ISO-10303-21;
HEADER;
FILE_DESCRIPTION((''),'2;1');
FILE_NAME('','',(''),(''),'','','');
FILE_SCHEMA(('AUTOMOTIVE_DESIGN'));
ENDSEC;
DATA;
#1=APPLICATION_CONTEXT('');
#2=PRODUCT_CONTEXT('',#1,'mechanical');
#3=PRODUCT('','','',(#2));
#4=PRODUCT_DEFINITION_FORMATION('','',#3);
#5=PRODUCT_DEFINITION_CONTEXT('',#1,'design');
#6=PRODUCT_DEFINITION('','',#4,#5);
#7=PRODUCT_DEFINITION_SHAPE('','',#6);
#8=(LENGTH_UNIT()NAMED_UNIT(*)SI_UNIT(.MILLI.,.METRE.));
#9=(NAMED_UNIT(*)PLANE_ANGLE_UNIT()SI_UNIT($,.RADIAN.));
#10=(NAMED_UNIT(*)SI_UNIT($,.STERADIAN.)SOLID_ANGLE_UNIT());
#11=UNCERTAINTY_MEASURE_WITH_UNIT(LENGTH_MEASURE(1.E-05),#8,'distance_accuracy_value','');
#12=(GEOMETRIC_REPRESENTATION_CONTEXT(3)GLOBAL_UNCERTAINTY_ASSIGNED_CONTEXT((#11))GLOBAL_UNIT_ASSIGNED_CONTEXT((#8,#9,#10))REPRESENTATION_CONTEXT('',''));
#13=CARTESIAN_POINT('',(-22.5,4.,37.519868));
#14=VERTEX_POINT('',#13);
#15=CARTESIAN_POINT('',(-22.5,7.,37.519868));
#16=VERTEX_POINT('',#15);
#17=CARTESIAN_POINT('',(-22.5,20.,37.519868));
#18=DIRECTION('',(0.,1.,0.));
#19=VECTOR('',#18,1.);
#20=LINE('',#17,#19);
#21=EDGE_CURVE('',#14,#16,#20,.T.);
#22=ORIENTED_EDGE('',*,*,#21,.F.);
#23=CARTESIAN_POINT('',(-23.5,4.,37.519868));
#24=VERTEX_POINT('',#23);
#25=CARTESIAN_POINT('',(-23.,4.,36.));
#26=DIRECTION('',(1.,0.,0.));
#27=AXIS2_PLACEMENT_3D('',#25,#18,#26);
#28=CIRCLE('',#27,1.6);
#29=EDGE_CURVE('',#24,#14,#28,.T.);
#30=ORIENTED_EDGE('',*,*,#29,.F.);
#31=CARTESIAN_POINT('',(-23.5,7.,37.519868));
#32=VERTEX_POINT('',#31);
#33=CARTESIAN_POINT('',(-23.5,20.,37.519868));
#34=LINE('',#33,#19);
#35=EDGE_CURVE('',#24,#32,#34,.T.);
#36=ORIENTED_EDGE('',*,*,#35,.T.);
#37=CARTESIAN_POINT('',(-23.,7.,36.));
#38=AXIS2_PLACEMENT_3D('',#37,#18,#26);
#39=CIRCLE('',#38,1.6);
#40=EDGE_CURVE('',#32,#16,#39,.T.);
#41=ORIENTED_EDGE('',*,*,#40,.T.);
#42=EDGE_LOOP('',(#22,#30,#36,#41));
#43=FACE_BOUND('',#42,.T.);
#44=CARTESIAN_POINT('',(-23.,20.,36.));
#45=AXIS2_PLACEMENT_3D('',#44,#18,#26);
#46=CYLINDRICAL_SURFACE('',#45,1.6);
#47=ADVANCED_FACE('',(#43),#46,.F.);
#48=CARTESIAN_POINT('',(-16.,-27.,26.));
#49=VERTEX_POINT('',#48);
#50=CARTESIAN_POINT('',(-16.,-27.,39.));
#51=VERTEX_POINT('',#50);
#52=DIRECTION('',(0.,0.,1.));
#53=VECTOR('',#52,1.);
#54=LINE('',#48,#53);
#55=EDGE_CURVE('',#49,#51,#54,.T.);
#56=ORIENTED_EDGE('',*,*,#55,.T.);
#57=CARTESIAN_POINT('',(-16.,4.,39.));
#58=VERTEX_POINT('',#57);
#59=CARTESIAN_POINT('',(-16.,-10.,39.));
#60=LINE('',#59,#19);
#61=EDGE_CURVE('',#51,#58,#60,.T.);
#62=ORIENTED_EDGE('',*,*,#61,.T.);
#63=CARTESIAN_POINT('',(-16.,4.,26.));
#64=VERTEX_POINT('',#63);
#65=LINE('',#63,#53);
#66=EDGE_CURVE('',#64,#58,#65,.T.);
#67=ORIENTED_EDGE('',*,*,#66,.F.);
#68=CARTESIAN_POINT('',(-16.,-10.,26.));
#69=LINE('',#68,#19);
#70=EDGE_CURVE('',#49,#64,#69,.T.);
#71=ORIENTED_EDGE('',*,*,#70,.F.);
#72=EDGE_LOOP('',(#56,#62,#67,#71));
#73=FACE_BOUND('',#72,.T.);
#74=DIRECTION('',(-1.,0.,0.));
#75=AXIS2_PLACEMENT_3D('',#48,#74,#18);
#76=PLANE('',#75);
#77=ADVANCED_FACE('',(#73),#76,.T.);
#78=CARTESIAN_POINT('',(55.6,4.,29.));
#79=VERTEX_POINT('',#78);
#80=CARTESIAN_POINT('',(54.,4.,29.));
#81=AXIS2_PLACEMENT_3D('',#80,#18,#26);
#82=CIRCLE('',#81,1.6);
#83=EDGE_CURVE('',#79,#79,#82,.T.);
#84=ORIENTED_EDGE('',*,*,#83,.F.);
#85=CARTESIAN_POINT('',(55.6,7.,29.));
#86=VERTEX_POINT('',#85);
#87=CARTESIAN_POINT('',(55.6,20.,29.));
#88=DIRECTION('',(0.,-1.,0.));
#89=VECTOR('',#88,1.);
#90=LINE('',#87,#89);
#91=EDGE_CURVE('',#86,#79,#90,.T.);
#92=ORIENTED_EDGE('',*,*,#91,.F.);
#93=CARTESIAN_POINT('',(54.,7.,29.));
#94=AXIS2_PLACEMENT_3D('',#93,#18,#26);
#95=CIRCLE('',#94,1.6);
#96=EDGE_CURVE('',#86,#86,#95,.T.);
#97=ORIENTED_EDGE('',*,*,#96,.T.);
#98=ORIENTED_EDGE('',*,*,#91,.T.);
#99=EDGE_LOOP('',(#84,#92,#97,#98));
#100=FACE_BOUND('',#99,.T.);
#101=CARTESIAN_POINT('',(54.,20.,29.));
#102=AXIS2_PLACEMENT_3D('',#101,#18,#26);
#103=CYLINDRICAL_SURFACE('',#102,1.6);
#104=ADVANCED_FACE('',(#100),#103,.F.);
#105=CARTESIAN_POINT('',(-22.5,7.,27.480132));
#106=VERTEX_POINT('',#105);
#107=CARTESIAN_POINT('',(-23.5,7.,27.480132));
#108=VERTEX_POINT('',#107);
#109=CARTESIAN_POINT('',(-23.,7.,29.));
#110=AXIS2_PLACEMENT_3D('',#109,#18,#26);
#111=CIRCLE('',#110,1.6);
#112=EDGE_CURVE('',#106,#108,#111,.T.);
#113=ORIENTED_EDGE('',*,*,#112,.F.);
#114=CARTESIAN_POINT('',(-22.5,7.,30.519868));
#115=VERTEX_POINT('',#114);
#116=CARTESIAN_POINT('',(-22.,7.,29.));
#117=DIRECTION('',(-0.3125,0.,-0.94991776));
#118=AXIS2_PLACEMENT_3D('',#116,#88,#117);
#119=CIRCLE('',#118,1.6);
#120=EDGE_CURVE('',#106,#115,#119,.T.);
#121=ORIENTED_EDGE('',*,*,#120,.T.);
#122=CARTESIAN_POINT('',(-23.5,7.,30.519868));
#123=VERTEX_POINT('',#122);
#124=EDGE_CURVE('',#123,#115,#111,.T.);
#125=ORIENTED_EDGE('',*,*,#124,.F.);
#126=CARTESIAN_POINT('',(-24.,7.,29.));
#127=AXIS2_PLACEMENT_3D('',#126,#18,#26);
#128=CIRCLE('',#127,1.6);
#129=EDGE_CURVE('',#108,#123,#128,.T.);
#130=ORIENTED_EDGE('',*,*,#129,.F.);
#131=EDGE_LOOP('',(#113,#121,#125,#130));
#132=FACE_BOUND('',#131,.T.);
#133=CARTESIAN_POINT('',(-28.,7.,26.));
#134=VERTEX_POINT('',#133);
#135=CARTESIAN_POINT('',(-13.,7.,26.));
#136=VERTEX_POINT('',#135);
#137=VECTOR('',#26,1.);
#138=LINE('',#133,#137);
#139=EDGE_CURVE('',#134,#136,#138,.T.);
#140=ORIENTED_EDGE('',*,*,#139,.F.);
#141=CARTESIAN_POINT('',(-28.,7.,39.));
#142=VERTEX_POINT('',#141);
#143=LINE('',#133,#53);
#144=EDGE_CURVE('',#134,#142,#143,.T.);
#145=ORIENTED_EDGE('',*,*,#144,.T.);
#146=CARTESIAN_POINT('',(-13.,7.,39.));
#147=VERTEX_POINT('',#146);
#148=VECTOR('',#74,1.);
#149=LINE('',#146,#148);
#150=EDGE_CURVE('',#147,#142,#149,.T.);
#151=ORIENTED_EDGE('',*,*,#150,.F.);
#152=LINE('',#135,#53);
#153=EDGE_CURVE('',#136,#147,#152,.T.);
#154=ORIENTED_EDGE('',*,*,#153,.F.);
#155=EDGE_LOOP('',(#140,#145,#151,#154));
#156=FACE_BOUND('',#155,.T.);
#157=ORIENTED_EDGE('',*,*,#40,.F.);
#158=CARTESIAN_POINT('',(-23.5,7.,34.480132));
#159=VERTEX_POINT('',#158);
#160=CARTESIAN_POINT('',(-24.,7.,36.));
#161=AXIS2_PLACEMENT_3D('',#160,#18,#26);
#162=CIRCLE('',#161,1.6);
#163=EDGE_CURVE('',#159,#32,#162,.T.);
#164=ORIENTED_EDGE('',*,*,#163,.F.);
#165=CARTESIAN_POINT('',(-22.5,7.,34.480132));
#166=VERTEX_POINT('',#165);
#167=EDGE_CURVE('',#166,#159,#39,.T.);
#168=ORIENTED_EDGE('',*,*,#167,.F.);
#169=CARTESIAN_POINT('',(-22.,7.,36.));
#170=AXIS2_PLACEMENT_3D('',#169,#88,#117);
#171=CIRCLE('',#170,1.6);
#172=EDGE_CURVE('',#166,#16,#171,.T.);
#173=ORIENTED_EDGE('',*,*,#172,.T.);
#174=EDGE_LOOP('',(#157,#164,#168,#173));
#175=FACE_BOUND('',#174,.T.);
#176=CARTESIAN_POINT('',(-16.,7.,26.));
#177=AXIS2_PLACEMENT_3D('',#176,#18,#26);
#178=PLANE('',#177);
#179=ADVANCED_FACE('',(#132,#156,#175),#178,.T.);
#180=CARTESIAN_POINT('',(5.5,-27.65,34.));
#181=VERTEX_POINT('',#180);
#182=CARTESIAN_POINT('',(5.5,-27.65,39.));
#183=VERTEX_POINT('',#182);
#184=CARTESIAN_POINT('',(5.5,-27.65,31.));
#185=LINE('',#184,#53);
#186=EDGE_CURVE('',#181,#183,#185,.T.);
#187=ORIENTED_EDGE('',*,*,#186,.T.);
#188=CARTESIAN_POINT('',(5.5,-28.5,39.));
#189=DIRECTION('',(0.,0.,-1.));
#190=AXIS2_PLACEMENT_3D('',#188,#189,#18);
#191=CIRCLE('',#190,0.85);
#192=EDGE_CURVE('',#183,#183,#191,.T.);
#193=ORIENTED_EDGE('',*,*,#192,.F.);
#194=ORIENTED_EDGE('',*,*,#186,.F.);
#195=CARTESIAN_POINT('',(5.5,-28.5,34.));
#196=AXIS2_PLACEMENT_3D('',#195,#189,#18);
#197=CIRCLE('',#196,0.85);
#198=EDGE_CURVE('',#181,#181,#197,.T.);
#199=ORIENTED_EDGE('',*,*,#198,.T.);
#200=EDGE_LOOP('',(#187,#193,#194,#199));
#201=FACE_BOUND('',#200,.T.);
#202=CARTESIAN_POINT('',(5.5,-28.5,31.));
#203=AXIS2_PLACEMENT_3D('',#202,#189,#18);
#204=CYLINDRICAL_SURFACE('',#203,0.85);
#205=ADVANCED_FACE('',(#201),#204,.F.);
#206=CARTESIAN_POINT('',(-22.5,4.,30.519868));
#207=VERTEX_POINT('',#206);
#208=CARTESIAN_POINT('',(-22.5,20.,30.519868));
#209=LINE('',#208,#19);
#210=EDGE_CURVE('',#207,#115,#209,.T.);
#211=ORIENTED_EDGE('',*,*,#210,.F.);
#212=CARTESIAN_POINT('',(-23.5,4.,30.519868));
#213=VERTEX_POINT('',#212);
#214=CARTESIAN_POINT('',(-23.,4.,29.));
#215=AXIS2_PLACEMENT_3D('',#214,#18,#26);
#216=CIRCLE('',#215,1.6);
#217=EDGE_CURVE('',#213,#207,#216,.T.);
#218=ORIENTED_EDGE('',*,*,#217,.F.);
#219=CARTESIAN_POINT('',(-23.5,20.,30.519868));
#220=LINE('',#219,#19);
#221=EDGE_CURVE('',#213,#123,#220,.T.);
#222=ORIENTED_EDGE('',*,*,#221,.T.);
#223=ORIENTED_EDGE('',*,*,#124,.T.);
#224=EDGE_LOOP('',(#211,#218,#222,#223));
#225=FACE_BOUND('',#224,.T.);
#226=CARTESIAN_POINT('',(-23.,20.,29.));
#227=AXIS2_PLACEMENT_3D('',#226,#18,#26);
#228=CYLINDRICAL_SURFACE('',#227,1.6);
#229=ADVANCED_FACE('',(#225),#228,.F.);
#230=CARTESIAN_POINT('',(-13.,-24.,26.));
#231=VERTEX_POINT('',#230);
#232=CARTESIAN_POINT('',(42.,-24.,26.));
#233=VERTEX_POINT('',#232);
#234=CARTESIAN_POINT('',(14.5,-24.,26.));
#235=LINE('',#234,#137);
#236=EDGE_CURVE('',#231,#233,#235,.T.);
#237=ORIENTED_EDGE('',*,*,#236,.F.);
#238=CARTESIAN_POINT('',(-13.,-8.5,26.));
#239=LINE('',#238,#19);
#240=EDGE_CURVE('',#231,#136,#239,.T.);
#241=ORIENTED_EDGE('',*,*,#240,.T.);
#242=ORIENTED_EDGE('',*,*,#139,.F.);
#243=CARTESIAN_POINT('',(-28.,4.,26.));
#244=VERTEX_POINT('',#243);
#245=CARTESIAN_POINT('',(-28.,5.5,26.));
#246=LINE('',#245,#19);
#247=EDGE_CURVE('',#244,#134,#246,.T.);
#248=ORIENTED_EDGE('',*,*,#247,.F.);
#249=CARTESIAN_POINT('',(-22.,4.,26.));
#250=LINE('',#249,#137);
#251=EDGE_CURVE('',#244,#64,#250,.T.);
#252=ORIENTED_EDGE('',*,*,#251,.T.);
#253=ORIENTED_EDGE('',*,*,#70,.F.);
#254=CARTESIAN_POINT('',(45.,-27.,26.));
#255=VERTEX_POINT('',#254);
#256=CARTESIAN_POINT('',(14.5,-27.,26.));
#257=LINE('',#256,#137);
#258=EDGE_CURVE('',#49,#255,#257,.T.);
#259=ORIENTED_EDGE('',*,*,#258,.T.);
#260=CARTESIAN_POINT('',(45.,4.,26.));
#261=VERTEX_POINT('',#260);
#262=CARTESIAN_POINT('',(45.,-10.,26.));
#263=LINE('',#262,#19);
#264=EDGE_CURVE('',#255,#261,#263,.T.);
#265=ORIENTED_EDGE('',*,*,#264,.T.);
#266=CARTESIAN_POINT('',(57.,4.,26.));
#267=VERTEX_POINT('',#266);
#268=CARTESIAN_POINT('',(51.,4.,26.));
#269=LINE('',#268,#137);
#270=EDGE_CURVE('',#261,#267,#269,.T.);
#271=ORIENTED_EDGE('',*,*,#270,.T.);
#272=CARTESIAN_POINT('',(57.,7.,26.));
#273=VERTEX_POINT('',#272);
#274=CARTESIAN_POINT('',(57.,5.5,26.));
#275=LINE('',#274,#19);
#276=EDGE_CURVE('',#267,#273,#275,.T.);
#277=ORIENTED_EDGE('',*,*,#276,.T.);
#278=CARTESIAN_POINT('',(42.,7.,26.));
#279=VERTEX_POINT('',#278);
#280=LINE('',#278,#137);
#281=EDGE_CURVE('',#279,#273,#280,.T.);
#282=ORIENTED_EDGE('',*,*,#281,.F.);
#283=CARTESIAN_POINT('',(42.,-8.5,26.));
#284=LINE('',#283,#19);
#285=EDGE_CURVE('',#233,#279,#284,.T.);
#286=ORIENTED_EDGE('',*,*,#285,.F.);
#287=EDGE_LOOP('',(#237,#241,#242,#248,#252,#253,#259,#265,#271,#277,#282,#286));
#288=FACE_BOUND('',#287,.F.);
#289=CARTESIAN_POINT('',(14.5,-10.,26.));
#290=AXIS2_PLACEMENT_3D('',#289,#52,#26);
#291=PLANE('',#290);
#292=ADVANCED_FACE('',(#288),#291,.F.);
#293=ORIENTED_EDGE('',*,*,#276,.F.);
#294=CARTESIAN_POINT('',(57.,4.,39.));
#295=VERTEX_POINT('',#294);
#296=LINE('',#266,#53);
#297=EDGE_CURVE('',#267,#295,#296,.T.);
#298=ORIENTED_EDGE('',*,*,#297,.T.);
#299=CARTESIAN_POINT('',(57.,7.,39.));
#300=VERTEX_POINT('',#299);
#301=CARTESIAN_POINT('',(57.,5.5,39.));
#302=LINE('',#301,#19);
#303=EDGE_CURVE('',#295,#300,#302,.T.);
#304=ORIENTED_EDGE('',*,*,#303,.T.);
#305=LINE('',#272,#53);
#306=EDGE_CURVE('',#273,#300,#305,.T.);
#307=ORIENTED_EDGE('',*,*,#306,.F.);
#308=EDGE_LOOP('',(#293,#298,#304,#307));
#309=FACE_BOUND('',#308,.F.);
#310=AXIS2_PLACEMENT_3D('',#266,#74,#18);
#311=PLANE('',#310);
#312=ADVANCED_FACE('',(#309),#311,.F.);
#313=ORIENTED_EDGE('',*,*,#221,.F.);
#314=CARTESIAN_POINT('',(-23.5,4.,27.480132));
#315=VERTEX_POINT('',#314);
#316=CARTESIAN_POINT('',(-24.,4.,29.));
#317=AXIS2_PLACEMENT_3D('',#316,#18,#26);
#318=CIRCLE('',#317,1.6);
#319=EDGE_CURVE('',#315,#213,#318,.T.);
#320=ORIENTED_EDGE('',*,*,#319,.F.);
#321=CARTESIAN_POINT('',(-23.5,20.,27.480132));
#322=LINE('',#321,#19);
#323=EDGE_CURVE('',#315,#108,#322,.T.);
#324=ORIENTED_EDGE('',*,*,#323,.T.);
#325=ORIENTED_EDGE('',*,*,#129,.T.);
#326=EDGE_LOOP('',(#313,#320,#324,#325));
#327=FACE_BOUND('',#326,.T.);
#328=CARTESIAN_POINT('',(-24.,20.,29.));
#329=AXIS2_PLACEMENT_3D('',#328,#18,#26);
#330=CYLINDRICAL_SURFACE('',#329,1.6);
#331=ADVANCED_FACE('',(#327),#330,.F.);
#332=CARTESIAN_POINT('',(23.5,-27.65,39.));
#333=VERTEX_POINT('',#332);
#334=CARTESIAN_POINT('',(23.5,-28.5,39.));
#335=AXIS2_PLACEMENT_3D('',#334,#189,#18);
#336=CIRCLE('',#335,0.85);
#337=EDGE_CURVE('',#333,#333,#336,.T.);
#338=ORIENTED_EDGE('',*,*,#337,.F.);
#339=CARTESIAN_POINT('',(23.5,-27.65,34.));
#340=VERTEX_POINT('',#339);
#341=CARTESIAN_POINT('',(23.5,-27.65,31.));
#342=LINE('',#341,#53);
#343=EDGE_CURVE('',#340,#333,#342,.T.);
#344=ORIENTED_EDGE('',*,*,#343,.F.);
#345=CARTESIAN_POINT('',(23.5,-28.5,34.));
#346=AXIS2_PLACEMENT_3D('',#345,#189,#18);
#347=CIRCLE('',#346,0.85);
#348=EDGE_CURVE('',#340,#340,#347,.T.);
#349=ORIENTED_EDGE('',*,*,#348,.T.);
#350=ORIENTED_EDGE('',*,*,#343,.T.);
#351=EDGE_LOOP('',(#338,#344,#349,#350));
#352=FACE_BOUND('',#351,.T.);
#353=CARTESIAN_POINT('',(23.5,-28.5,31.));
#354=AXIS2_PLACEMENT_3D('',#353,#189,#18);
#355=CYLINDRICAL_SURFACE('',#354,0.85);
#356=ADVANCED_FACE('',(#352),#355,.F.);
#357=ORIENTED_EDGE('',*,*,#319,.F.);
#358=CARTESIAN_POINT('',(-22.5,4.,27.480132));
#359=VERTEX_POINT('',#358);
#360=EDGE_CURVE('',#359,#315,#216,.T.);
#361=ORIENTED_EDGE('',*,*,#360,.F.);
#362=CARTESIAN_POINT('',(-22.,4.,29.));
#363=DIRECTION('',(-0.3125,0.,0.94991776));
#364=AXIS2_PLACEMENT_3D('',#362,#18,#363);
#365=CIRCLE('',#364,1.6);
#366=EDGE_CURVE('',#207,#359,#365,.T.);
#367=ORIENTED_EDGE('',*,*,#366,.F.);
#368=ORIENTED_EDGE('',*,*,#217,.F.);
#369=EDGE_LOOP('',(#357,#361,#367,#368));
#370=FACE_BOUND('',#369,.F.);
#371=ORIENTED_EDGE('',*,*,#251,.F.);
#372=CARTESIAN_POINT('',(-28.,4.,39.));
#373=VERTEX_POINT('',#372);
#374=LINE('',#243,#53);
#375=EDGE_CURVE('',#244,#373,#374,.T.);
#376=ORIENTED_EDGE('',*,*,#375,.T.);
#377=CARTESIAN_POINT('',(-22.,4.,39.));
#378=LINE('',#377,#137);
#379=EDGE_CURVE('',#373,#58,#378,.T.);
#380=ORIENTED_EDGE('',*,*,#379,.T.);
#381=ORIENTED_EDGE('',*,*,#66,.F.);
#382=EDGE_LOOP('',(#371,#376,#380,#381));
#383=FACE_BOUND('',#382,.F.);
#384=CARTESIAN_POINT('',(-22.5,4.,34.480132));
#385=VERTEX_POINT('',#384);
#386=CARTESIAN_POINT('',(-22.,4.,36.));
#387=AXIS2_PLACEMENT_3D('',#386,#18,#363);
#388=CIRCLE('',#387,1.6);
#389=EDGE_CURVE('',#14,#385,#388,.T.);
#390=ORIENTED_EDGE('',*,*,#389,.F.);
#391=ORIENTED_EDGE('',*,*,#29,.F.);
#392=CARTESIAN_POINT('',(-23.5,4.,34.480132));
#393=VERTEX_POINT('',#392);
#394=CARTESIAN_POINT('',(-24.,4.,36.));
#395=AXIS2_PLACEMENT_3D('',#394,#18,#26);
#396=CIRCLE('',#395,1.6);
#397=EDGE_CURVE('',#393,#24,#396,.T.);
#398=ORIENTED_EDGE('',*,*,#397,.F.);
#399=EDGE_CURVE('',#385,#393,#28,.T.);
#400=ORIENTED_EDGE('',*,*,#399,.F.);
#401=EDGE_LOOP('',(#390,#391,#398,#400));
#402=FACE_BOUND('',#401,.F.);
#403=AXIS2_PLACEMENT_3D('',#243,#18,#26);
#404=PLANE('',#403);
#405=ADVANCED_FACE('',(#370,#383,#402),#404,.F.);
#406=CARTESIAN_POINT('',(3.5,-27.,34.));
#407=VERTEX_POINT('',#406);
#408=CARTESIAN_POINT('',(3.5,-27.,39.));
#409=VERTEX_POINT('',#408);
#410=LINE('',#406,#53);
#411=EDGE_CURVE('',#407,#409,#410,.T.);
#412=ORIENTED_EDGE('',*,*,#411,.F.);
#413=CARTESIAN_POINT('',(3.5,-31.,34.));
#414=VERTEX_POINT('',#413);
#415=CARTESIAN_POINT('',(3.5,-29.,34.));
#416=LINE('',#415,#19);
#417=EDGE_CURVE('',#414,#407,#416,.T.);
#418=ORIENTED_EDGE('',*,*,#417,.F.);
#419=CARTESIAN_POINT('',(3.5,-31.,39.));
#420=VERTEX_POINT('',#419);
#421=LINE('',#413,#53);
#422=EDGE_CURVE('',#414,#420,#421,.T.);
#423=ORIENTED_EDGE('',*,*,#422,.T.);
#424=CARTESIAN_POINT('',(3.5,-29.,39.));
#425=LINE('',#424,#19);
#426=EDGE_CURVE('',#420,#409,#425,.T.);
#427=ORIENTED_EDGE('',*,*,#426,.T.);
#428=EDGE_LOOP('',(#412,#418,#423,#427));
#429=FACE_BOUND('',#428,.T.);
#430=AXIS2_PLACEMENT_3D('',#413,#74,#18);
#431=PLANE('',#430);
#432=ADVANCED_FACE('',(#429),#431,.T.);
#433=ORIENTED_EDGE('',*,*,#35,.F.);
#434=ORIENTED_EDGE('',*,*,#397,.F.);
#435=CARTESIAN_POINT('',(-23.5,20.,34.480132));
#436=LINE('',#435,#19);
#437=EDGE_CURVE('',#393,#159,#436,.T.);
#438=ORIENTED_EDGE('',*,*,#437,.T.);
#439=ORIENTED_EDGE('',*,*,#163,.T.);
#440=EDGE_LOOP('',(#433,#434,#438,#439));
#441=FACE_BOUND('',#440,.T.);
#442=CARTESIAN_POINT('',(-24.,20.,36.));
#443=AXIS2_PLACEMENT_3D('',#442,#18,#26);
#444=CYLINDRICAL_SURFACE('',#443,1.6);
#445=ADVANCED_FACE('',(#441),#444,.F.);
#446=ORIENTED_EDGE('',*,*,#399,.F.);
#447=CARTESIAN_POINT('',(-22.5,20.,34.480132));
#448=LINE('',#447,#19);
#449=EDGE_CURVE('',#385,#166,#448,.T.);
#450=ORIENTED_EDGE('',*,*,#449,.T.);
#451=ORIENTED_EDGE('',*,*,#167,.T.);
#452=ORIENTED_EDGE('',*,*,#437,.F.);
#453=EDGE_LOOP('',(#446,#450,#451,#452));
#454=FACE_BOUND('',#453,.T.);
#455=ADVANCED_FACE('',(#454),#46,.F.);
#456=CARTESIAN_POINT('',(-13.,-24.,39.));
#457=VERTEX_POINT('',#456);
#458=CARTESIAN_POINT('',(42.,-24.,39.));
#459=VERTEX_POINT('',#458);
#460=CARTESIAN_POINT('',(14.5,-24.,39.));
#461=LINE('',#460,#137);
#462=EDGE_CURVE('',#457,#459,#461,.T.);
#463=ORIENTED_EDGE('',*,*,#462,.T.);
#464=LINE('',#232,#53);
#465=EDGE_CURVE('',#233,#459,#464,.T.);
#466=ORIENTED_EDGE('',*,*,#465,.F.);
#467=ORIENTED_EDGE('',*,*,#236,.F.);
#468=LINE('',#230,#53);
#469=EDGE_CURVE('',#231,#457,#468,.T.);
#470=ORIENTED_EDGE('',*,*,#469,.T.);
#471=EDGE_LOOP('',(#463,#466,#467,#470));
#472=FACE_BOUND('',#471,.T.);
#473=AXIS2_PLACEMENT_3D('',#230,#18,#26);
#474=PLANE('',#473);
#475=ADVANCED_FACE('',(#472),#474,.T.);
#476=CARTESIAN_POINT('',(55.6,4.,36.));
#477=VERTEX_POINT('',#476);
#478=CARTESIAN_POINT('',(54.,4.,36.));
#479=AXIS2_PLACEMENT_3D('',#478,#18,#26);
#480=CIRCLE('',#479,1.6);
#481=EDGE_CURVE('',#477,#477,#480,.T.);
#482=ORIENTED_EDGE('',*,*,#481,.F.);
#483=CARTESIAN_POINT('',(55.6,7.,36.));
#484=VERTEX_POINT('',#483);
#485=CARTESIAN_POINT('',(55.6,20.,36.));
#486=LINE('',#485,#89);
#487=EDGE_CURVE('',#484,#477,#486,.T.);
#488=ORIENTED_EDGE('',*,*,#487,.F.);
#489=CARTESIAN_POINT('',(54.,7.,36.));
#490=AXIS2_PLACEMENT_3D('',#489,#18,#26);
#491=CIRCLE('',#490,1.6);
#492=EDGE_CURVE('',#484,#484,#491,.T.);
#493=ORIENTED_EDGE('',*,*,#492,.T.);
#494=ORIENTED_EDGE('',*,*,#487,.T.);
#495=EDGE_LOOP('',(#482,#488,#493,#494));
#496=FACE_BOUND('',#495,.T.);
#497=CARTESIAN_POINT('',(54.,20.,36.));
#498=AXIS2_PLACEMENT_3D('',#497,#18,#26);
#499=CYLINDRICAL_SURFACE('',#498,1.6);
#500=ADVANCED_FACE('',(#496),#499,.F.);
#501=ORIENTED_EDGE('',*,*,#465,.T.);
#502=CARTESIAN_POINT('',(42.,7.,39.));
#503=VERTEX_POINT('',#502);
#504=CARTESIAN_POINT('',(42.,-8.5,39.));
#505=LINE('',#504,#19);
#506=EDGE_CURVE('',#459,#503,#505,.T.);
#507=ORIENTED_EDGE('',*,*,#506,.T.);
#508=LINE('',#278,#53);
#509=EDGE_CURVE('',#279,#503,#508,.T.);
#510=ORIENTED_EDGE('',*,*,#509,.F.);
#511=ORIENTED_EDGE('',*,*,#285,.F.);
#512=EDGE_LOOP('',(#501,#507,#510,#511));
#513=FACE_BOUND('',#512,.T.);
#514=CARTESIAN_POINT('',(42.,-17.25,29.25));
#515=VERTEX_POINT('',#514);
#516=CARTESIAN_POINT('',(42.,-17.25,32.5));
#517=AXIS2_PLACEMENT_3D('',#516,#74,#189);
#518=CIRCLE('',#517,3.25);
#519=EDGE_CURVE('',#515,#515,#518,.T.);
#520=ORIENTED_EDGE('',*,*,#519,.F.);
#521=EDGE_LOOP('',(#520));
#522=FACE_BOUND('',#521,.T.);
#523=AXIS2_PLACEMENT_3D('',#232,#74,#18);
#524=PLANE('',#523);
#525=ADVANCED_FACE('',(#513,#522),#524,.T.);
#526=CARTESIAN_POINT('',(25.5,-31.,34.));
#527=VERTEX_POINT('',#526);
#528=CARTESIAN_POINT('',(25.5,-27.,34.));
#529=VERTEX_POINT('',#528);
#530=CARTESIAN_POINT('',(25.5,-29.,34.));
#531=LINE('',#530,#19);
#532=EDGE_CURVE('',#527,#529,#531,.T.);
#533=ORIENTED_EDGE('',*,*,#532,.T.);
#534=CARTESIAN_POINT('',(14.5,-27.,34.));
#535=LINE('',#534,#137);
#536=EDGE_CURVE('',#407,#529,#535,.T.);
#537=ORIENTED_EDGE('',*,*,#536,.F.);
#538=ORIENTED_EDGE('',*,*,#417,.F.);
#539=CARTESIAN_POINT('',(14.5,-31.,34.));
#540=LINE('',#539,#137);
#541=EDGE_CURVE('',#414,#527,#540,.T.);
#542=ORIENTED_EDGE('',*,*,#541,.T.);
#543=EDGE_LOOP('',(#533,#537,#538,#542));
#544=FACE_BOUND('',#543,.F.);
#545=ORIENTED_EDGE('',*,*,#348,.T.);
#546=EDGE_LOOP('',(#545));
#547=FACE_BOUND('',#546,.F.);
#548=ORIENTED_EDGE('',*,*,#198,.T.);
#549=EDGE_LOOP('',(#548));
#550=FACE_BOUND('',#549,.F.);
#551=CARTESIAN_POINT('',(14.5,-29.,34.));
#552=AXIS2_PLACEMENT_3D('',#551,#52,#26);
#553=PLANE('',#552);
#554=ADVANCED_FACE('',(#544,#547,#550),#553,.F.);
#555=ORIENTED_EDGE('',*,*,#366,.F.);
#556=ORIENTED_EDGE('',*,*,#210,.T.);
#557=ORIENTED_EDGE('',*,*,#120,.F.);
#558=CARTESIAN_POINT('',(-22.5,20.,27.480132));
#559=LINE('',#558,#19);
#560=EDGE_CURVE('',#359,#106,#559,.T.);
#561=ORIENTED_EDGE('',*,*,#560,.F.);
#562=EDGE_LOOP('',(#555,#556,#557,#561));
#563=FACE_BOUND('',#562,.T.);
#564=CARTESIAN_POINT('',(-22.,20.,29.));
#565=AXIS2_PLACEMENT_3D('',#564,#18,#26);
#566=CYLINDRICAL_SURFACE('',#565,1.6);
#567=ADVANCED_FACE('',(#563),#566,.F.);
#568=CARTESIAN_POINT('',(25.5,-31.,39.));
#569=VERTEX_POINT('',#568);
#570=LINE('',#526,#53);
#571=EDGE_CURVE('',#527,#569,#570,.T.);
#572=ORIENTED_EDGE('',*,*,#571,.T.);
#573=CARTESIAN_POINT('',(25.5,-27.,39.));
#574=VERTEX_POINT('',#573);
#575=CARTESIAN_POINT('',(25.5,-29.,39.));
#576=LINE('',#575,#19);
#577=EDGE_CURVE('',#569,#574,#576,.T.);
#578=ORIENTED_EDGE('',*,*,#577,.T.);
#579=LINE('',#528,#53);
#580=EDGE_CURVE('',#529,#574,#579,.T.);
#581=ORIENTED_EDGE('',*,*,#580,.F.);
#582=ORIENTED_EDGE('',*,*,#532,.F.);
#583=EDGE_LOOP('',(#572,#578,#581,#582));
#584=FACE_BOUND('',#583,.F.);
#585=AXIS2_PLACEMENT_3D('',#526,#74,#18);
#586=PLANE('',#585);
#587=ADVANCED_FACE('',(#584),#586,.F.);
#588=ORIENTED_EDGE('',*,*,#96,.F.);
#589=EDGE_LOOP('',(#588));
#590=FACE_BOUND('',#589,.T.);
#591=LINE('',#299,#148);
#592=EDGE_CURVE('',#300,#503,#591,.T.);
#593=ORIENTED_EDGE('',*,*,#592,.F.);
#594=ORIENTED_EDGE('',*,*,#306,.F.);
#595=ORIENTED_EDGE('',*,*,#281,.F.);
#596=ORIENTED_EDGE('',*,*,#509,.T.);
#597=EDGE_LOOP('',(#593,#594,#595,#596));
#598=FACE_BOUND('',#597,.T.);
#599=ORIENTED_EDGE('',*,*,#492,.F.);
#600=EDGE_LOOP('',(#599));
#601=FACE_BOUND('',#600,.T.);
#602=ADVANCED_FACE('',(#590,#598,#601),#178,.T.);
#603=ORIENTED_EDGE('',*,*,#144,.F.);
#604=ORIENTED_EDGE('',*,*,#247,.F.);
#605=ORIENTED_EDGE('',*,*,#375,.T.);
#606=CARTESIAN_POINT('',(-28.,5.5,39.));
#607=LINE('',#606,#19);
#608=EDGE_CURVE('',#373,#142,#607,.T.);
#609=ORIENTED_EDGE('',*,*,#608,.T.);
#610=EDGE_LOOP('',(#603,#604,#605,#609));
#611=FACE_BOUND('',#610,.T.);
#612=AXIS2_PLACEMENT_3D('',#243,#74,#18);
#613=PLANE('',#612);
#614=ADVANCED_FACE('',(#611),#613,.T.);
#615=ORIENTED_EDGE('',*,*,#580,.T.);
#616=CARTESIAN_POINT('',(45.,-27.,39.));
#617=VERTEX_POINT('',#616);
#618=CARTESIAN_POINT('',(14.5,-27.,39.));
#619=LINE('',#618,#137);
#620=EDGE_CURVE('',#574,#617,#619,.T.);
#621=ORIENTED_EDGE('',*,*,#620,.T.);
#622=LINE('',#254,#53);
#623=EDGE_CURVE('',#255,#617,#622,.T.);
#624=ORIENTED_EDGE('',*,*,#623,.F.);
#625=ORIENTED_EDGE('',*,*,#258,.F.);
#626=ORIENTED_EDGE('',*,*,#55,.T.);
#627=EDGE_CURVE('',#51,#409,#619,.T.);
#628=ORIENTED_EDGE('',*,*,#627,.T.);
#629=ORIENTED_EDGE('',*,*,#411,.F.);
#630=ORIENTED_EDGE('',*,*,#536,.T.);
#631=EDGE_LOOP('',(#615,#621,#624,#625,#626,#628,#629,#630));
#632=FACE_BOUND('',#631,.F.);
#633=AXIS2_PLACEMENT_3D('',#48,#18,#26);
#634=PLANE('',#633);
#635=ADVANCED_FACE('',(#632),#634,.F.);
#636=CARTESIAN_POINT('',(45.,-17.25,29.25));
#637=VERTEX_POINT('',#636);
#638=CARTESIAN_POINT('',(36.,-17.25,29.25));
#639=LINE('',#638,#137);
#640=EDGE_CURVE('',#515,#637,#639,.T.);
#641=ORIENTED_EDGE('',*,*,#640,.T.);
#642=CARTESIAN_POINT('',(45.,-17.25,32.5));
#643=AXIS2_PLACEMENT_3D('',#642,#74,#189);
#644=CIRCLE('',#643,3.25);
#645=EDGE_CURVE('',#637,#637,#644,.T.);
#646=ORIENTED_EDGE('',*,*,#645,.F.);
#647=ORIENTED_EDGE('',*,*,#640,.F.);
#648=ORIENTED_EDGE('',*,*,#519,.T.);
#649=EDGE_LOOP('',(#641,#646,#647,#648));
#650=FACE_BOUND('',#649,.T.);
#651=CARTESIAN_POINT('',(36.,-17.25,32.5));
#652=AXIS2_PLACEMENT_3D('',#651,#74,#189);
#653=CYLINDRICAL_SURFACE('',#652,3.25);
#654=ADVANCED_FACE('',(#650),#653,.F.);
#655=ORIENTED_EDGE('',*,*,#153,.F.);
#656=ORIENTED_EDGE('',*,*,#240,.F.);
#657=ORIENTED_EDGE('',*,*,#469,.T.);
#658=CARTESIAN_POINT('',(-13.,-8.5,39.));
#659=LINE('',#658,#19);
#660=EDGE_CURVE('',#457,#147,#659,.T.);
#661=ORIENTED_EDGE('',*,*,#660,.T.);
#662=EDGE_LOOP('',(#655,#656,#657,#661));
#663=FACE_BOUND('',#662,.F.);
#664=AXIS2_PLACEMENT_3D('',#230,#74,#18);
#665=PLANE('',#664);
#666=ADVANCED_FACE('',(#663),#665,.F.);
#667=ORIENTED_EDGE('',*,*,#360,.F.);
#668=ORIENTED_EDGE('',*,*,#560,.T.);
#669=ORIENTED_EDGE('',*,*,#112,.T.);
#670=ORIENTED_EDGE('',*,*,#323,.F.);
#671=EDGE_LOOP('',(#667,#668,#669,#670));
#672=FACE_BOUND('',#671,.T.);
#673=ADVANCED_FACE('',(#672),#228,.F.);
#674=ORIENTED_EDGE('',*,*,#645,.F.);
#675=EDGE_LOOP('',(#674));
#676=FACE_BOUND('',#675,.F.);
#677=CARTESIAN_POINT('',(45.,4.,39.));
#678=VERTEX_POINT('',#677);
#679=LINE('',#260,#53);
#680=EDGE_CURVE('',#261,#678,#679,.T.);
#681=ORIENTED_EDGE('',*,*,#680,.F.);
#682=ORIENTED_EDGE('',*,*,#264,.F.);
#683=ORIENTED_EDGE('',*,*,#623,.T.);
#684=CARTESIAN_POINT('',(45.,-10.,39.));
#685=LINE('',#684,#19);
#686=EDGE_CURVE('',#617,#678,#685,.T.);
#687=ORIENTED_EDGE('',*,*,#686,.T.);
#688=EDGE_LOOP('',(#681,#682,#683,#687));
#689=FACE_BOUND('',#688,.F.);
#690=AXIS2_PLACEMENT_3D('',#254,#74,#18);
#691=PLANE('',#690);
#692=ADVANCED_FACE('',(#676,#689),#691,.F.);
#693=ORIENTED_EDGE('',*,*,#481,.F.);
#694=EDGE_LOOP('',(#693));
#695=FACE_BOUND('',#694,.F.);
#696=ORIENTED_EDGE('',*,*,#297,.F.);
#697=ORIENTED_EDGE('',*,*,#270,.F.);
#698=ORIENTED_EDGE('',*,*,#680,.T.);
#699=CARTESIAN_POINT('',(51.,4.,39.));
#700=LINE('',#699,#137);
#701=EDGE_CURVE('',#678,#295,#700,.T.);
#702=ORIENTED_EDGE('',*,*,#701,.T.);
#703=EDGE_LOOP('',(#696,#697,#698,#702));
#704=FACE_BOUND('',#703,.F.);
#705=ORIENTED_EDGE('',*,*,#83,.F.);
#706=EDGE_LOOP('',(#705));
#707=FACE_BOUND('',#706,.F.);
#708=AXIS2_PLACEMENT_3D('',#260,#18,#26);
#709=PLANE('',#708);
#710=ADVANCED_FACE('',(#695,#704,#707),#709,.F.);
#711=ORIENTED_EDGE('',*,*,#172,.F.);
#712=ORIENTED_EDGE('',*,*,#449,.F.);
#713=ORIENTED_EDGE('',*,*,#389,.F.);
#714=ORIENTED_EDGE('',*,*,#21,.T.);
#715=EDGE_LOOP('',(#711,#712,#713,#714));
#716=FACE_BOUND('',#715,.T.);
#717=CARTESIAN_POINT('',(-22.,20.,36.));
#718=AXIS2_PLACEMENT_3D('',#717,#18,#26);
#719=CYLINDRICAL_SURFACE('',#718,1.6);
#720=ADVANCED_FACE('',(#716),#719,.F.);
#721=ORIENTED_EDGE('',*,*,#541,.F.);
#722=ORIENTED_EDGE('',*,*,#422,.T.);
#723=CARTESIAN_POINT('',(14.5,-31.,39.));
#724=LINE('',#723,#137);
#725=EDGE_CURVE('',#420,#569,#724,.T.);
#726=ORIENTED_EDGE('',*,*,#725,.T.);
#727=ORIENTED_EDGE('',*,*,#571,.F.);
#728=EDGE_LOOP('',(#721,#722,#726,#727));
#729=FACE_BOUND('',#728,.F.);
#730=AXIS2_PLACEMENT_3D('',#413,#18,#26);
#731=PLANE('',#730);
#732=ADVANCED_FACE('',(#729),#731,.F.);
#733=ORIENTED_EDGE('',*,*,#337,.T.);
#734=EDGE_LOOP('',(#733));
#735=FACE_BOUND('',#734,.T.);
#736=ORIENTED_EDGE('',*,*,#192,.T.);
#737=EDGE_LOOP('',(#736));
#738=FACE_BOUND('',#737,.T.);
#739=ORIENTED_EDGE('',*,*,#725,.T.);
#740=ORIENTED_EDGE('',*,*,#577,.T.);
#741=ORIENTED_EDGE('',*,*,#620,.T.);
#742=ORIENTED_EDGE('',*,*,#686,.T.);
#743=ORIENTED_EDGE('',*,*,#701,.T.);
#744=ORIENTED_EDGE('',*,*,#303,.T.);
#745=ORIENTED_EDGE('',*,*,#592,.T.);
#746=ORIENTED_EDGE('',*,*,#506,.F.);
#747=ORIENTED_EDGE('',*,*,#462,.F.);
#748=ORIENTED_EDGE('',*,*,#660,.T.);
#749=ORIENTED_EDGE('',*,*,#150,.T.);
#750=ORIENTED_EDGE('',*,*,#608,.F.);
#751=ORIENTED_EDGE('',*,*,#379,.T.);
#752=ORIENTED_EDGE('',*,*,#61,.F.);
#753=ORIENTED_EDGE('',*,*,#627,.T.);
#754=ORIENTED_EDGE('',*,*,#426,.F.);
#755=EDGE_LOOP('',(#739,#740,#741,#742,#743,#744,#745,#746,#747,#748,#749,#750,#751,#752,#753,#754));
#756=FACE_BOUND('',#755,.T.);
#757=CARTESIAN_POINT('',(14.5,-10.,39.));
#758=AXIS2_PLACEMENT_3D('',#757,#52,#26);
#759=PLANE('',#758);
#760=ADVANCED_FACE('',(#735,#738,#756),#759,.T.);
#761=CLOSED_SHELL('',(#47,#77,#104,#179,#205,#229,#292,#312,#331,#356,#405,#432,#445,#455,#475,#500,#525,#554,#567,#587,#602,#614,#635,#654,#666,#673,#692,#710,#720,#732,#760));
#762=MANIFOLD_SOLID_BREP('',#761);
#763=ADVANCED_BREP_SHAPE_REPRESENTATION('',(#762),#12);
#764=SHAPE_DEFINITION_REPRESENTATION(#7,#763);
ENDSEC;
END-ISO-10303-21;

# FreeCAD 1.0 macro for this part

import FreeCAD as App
import Part
import Sketcher
Q = App.Units.Quantity

doc = App.newDocument("Part")
body = doc.addObject("PartDesign::Body", "Body")

# Sketch on XY plane
sketch1 = body.newObject("Sketcher::SketchObject", "Sketch")
sketch1.AttachmentSupport = (doc.getObject("XY_Plane"), [""])
sketch1.MapMode = "FlatFace"
sketch1.addGeometry(Part.Circle(App.Vector(0, 0, 0), App.Vector(0, 0, 1), 1.6), False)
sketch1.addConstraint([
    Sketcher.Constraint("Coincident", 0, 3, -1, 1),
    Sketcher.Constraint("Diameter", 0, Q("3.2 mm")),
])
pad1 = body.newObject("PartDesign::Pad", "Pad")
pad1.Profile = sketch1
pad1.Length = 28
body2 = doc.addObject("PartDesign::Body", "Body001")
doc.recompute()

body.Placement = App.Placement(App.Vector(0, 0, 0), App.Rotation(App.Vector(1, 0, 0), 90))
boolean = body2.newObject("PartDesign::Boolean", "Boolean")
boolean.Type = "Fuse"
boolean.addObjects([body])
body3 = doc.addObject("PartDesign::Body", "Body002")
doc.recompute()

body2.Placement = App.Placement(App.Vector(-23, 20, 36), App.Rotation(App.Vector(0, 0, 1), 0))
boolean2 = body3.newObject("PartDesign::Boolean", "Boolean001")
boolean2.Type = "Fuse"
boolean2.addObjects([body2])
body4 = doc.addObject("PartDesign::Body", "Body003")

# Sketch on XY plane
sketch2 = body4.newObject("Sketcher::SketchObject", "Sketch001")
sketch2.AttachmentSupport = (doc.getObject("XY_Plane003"), [""])
sketch2.MapMode = "FlatFace"
sketch2.addGeometry(Part.Circle(App.Vector(0, 0, 0), App.Vector(0, 0, 1), 1.6), False)
sketch2.addConstraint([
    Sketcher.Constraint("Coincident", 0, 3, -1, 1),
    Sketcher.Constraint("Diameter", 0, Q("3.2 mm")),
])
pad2 = body4.newObject("PartDesign::Pad", "Pad001")
pad2.Profile = sketch2
pad2.Length = 28
body5 = doc.addObject("PartDesign::Body", "Body004")
doc.recompute()

body4.Placement = App.Placement(App.Vector(0, 0, 0), App.Rotation(App.Vector(1, 0, 0), 90))
boolean3 = body5.newObject("PartDesign::Boolean", "Boolean002")
boolean3.Type = "Fuse"
boolean3.addObjects([body4])
body6 = doc.addObject("PartDesign::Body", "Body005")
body6.AllowCompound = True
doc.recompute()

body5.Placement = App.Placement(App.Vector(-23, 20, 29), App.Rotation(App.Vector(0, 0, 1), 0))
boolean4 = body6.newObject("PartDesign::Boolean", "Boolean003")
boolean4.Type = "Fuse"
boolean4.addObjects([body5])
doc.recompute()

boolean5 = body6.newObject("PartDesign::Boolean", "Boolean004")
boolean5.Type = "Fuse"
boolean5.addObjects([body3])
body7 = doc.addObject("PartDesign::Body", "Body006")
body7.AllowCompound = True
doc.recompute()

body6.Placement = App.Placement(App.Vector(-1, 0, 0), App.Rotation(App.Vector(0, 0, 1), 0))
boolean6 = body7.newObject("PartDesign::Boolean", "Boolean005")
boolean6.Type = "Fuse"
boolean6.addObjects([body6])
body8 = doc.addObject("PartDesign::Body", "Body007")

# Sketch on XY plane
sketch3 = body8.newObject("Sketcher::SketchObject", "Sketch002")
sketch3.AttachmentSupport = (doc.getObject("XY_Plane007"), [""])
sketch3.MapMode = "FlatFace"
sketch3.addGeometry(Part.Circle(App.Vector(0, 0, 0), App.Vector(0, 0, 1), 1.6), False)
sketch3.addConstraint([
    Sketcher.Constraint("Coincident", 0, 3, -1, 1),
    Sketcher.Constraint("Diameter", 0, Q("3.2 mm")),
])
pad3 = body8.newObject("PartDesign::Pad", "Pad002")
pad3.Profile = sketch3
pad3.Length = 28
body9 = doc.addObject("PartDesign::Body", "Body008")
doc.recompute()

body8.Placement = App.Placement(App.Vector(0, 0, 0), App.Rotation(App.Vector(1, 0, 0), 90))
boolean7 = body9.newObject("PartDesign::Boolean", "Boolean006")
boolean7.Type = "Fuse"
boolean7.addObjects([body8])
body10 = doc.addObject("PartDesign::Body", "Body009")
doc.recompute()

body9.Placement = App.Placement(App.Vector(-23, 20, 36), App.Rotation(App.Vector(0, 0, 1), 0))
boolean8 = body10.newObject("PartDesign::Boolean", "Boolean007")
boolean8.Type = "Fuse"
boolean8.addObjects([body9])
body11 = doc.addObject("PartDesign::Body", "Body010")

# Sketch on XY plane
sketch4 = body11.newObject("Sketcher::SketchObject", "Sketch003")
sketch4.AttachmentSupport = (doc.getObject("XY_Plane010"), [""])
sketch4.MapMode = "FlatFace"
sketch4.addGeometry(Part.Circle(App.Vector(0, 0, 0), App.Vector(0, 0, 1), 1.6), False)
sketch4.addConstraint([
    Sketcher.Constraint("Coincident", 0, 3, -1, 1),
    Sketcher.Constraint("Diameter", 0, Q("3.2 mm")),
])
pad4 = body11.newObject("PartDesign::Pad", "Pad003")
pad4.Profile = sketch4
pad4.Length = 28
body12 = doc.addObject("PartDesign::Body", "Body011")
doc.recompute()

body11.Placement = App.Placement(App.Vector(0, 0, 0), App.Rotation(App.Vector(1, 0, 0), 90))
boolean9 = body12.newObject("PartDesign::Boolean", "Boolean008")
boolean9.Type = "Fuse"
boolean9.addObjects([body11])
body13 = doc.addObject("PartDesign::Body", "Body012")
body13.AllowCompound = True
doc.recompute()

body12.Placement = App.Placement(App.Vector(-23, 20, 29), App.Rotation(App.Vector(0, 0, 1), 0))
boolean10 = body13.newObject("PartDesign::Boolean", "Boolean009")
boolean10.Type = "Fuse"
boolean10.addObjects([body12])
doc.recompute()

boolean11 = body13.newObject("PartDesign::Boolean", "Boolean010")
boolean11.Type = "Fuse"
boolean11.addObjects([body10])
body14 = doc.addObject("PartDesign::Body", "Body013")
body14.AllowCompound = True
doc.recompute()

body13.Placement = App.Placement(App.Vector(1, 0, 0), App.Rotation(App.Vector(0, 0, 1), 0))
boolean12 = body14.newObject("PartDesign::Boolean", "Boolean011")
boolean12.Type = "Fuse"
boolean12.addObjects([body13])
body15 = doc.addObject("PartDesign::Body", "Body014")

# Sketch on XY plane
sketch5 = body15.newObject("Sketcher::SketchObject", "Sketch004")
sketch5.AttachmentSupport = (doc.getObject("XY_Plane014"), [""])
sketch5.MapMode = "FlatFace"
sketch5.addGeometry(Part.Circle(App.Vector(0, 0, 0), App.Vector(0, 0, 1), 1.6), False)
sketch5.addConstraint([
    Sketcher.Constraint("Coincident", 0, 3, -1, 1),
    Sketcher.Constraint("Diameter", 0, Q("3.2 mm")),
])
pad5 = body15.newObject("PartDesign::Pad", "Pad004")
pad5.Profile = sketch5
pad5.Length = 28
body16 = doc.addObject("PartDesign::Body", "Body015")
doc.recompute()

body15.Placement = App.Placement(App.Vector(0, 0, 0), App.Rotation(App.Vector(1, 0, 0), 90))
boolean13 = body16.newObject("PartDesign::Boolean", "Boolean012")
boolean13.Type = "Fuse"
boolean13.addObjects([body15])
body17 = doc.addObject("PartDesign::Body", "Body016")
doc.recompute()

body16.Placement = App.Placement(App.Vector(-23, 20, 36), App.Rotation(App.Vector(0, 0, 1), 0))
boolean14 = body17.newObject("PartDesign::Boolean", "Boolean013")
boolean14.Type = "Fuse"
boolean14.addObjects([body16])
body18 = doc.addObject("PartDesign::Body", "Body017")

# Sketch on XY plane
sketch6 = body18.newObject("Sketcher::SketchObject", "Sketch005")
sketch6.AttachmentSupport = (doc.getObject("XY_Plane017"), [""])
sketch6.MapMode = "FlatFace"
sketch6.addGeometry(Part.Circle(App.Vector(0, 0, 0), App.Vector(0, 0, 1), 1.6), False)
sketch6.addConstraint([
    Sketcher.Constraint("Coincident", 0, 3, -1, 1),
    Sketcher.Constraint("Diameter", 0, Q("3.2 mm")),
])
pad6 = body18.newObject("PartDesign::Pad", "Pad005")
pad6.Profile = sketch6
pad6.Length = 28
body19 = doc.addObject("PartDesign::Body", "Body018")
doc.recompute()

body18.Placement = App.Placement(App.Vector(0, 0, 0), App.Rotation(App.Vector(1, 0, 0), 90))
boolean15 = body19.newObject("PartDesign::Boolean", "Boolean014")
boolean15.Type = "Fuse"
boolean15.addObjects([body18])
body20 = doc.addObject("PartDesign::Body", "Body019")
body20.AllowCompound = True
doc.recompute()

body19.Placement = App.Placement(App.Vector(-23, 20, 29), App.Rotation(App.Vector(0, 0, 1), 0))
boolean16 = body20.newObject("PartDesign::Boolean", "Boolean015")
boolean16.Type = "Fuse"
boolean16.addObjects([body19])
doc.recompute()

boolean17 = body20.newObject("PartDesign::Boolean", "Boolean016")
boolean17.Type = "Fuse"
boolean17.addObjects([body17])
body21 = doc.addObject("PartDesign::Body", "Body020")

# Sketch on XY plane
sketch7 = body21.newObject("Sketcher::SketchObject", "Sketch006")
sketch7.AttachmentSupport = (doc.getObject("XY_Plane020"), [""])
sketch7.MapMode = "FlatFace"
sketch7.addGeometry(Part.Circle(App.Vector(0, 0, 0), App.Vector(0, 0, 1), 1.6), False)
sketch7.addConstraint([
    Sketcher.Constraint("Coincident", 0, 3, -1, 1),
    Sketcher.Constraint("Diameter", 0, Q("3.2 mm")),
])
pad7 = body21.newObject("PartDesign::Pad", "Pad006")
pad7.Profile = sketch7
pad7.Length = 28
body22 = doc.addObject("PartDesign::Body", "Body021")
doc.recompute()

body21.Placement = App.Placement(App.Vector(0, 0, 0), App.Rotation(App.Vector(1, 0, 0), 90))
boolean18 = body22.newObject("PartDesign::Boolean", "Boolean017")
boolean18.Type = "Fuse"
boolean18.addObjects([body21])
body23 = doc.addObject("PartDesign::Body", "Body022")
doc.recompute()

body22.Placement = App.Placement(App.Vector(54, 20, 36), App.Rotation(App.Vector(0, 0, 1), 0))
boolean19 = body23.newObject("PartDesign::Boolean", "Boolean018")
boolean19.Type = "Fuse"
boolean19.addObjects([body22])
body24 = doc.addObject("PartDesign::Body", "Body023")

# Sketch on XY plane
sketch8 = body24.newObject("Sketcher::SketchObject", "Sketch007")
sketch8.AttachmentSupport = (doc.getObject("XY_Plane023"), [""])
sketch8.MapMode = "FlatFace"
sketch8.addGeometry(Part.Circle(App.Vector(0, 0, 0), App.Vector(0, 0, 1), 1.6), False)
sketch8.addConstraint([
    Sketcher.Constraint("Coincident", 0, 3, -1, 1),
    Sketcher.Constraint("Diameter", 0, Q("3.2 mm")),
])
pad8 = body24.newObject("PartDesign::Pad", "Pad007")
pad8.Profile = sketch8
pad8.Length = 28
body25 = doc.addObject("PartDesign::Body", "Body024")
doc.recompute()

body24.Placement = App.Placement(App.Vector(0, 0, 0), App.Rotation(App.Vector(1, 0, 0), 90))
boolean20 = body25.newObject("PartDesign::Boolean", "Boolean019")
boolean20.Type = "Fuse"
boolean20.addObjects([body24])
body26 = doc.addObject("PartDesign::Body", "Body025")
body26.AllowCompound = True
doc.recompute()

body25.Placement = App.Placement(App.Vector(54, 20, 29), App.Rotation(App.Vector(0, 0, 1), 0))
boolean21 = body26.newObject("PartDesign::Boolean", "Boolean020")
boolean21.Type = "Fuse"
boolean21.addObjects([body25])
doc.recompute()

boolean22 = body26.newObject("PartDesign::Boolean", "Boolean021")
boolean22.Type = "Fuse"
boolean22.addObjects([body23])
body27 = doc.addObject("PartDesign::Body", "Body026")

# Sketch on XY plane
sketch9 = body27.newObject("Sketcher::SketchObject", "Sketch008")
sketch9.AttachmentSupport = (doc.getObject("XY_Plane026"), [""])
sketch9.MapMode = "FlatFace"
sketch9.addGeometry(Part.Circle(App.Vector(10.5, -9, 0), App.Vector(0, 0, 1), 0.8), False)
sketch9.addConstraint([
    Sketcher.Constraint("Diameter", 0, Q("1.7 mm")),
    Sketcher.Constraint("DistanceY", 0, 3, -1, 1, Q("9 mm")),
    Sketcher.Constraint("DistanceX", -1, 1, 0, 3, Q("10.5 mm")),
])
pad9 = body27.newObject("PartDesign::Pad", "Pad008")
pad9.Profile = sketch9
pad9.Length = 10
body28 = doc.addObject("PartDesign::Body", "Body027")
body28.AllowCompound = True

# Sketch on XY plane
sketch10 = body28.newObject("Sketcher::SketchObject", "Sketch009")
sketch10.AttachmentSupport = (doc.getObject("XY_Plane027"), [""])
sketch10.MapMode = "FlatFace"
sketch10.addGeometry(Part.Circle(App.Vector(10.5, 9, 0), App.Vector(0, 0, 1), 0.8), False)
sketch10.addConstraint([
    Sketcher.Constraint("Diameter", 0, Q("1.7 mm")),
    Sketcher.Constraint("DistanceY", -1, 1, 0, 3, Q("9 mm")),
    Sketcher.Constraint("DistanceX", -1, 1, 0, 3, Q("10.5 mm")),
])
pad10 = body28.newObject("PartDesign::Pad", "Pad009")
pad10.Profile = sketch10
pad10.Length = 10
doc.recompute()

boolean23 = body28.newObject("PartDesign::Boolean", "Boolean022")
boolean23.Type = "Fuse"
boolean23.addObjects([body27])
body29 = doc.addObject("PartDesign::Body", "Body028")
body29.AllowCompound = True
doc.recompute()

body28.Placement = App.Placement(App.Vector(14.5, -39, 31), App.Rotation(App.Vector(0, 0, 1), 90))
boolean24 = body29.newObject("PartDesign::Boolean", "Boolean023")
boolean24.Type = "Fuse"
boolean24.addObjects([body28])
body30 = doc.addObject("PartDesign::Body", "Body029")

# Sketch on XY plane
sketch11 = body30.newObject("Sketcher::SketchObject", "Sketch010")
sketch11.AttachmentSupport = (doc.getObject("XY_Plane029"), [""])
sketch11.MapMode = "FlatFace"
sketch11.AttachmentOffset = App.Placement(App.Vector(0, 0, 34), App.Rotation())
sketch11.addGeometry([
    Part.LineSegment(App.Vector(3.5, -27, 0), App.Vector(3.5, -31, 0)),
    Part.LineSegment(App.Vector(3.5, -31, 0), App.Vector(25.5, -31, 0)),
    Part.LineSegment(App.Vector(25.5, -31, 0), App.Vector(25.5, -27, 0)),
    Part.LineSegment(App.Vector(25.5, -27, 0), App.Vector(3.5, -27, 0)),
], False)
sketch11.addConstraint([
    Sketcher.Constraint("Coincident", 0, 2, 1, 1),
    Sketcher.Constraint("Coincident", 1, 2, 2, 1),
    Sketcher.Constraint("Coincident", 2, 2, 3, 1),
    Sketcher.Constraint("Coincident", 3, 2, 0, 1),
    Sketcher.Constraint("Vertical", 0),
    Sketcher.Constraint("Horizontal", 1),
    Sketcher.Constraint("Vertical", 2),
    Sketcher.Constraint("Horizontal", 3),
    Sketcher.Constraint("DistanceX", 1, 1, 1, 2, Q("22 mm")),
    Sketcher.Constraint("DistanceY", 0, 2, 0, 1, Q("4 mm")),
    Sketcher.Constraint("DistanceY", 0, 2, -1, 1, Q("31 mm")),
    Sketcher.Constraint("DistanceX", -1, 1, 0, 2, Q("3.5 mm")),
])
pad11 = body30.newObject("PartDesign::Pad", "Pad010")
pad11.Profile = sketch11
pad11.Length = 5
doc.recompute()

boolean25 = body30.newObject("PartDesign::Boolean", "Boolean024")
boolean25.Type = "Cut"
boolean25.addObjects([body29])
body31 = doc.addObject("PartDesign::Body", "Body030")

# Sketch on XY plane
sketch12 = body31.newObject("Sketcher::SketchObject", "Sketch011")
sketch12.AttachmentSupport = (doc.getObject("XY_Plane030"), [""])
sketch12.MapMode = "FlatFace"
sketch12.addGeometry(Part.Circle(App.Vector(0, 0, 0), App.Vector(0, 0, 1), 3.2), False)
sketch12.addConstraint([
    Sketcher.Constraint("Coincident", 0, 3, -1, 1),
    Sketcher.Constraint("Diameter", 0, Q("6.5 mm")),
])
pad12 = body31.newObject("PartDesign::Pad", "Pad011")
pad12.Profile = sketch12
pad12.Length = 10
body32 = doc.addObject("PartDesign::Body", "Body031")
doc.recompute()

body31.Placement = App.Placement(App.Vector(0, 0, 0), App.Rotation(App.Vector(0, 1, 0), 90))
boolean26 = body32.newObject("PartDesign::Boolean", "Boolean025")
boolean26.Type = "Fuse"
boolean26.addObjects([body31])
body33 = doc.addObject("PartDesign::Body", "Body032")
doc.recompute()

body32.Placement = App.Placement(App.Vector(36, -17.25, 32.5), App.Rotation(App.Vector(0, 0, 1), 0))
boolean27 = body33.newObject("PartDesign::Boolean", "Boolean026")
boolean27.Type = "Fuse"
boolean27.addObjects([body32])
body34 = doc.addObject("PartDesign::Body", "Body033")

# Sketch on XY plane
sketch13 = body34.newObject("Sketcher::SketchObject", "Sketch012")
sketch13.AttachmentSupport = (doc.getObject("XY_Plane033"), [""])
sketch13.MapMode = "FlatFace"
sketch13.AttachmentOffset = App.Placement(App.Vector(0, 0, 26), App.Rotation())
sketch13.addGeometry([
    Part.LineSegment(App.Vector(-13, 7, 0), App.Vector(-13, -24, 0)),
    Part.LineSegment(App.Vector(-13, -24, 0), App.Vector(42, -24, 0)),
    Part.LineSegment(App.Vector(42, -24, 0), App.Vector(42, 7, 0)),
    Part.LineSegment(App.Vector(42, 7, 0), App.Vector(-13, 7, 0)),
], False)
sketch13.addConstraint([
    Sketcher.Constraint("Coincident", 0, 2, 1, 1),
    Sketcher.Constraint("Coincident", 1, 2, 2, 1),
    Sketcher.Constraint("Coincident", 2, 2, 3, 1),
    Sketcher.Constraint("Coincident", 3, 2, 0, 1),
    Sketcher.Constraint("Vertical", 0),
    Sketcher.Constraint("Horizontal", 1),
    Sketcher.Constraint("Vertical", 2),
    Sketcher.Constraint("Horizontal", 3),
    Sketcher.Constraint("DistanceX", 1, 1, 1, 2, Q("55 mm")),
    Sketcher.Constraint("DistanceY", 0, 2, 0, 1, Q("31 mm")),
    Sketcher.Constraint("DistanceX", 0, 2, -1, 1, Q("13 mm")),
    Sketcher.Constraint("DistanceY", 0, 2, -1, 1, Q("24 mm")),
])
pad13 = body34.newObject("PartDesign::Pad", "Pad012")
pad13.Profile = sketch13
pad13.Length = 13
body35 = doc.addObject("PartDesign::Body", "Body034")

# Sketch on XY plane
sketch14 = body35.newObject("Sketcher::SketchObject", "Sketch013")
sketch14.AttachmentSupport = (doc.getObject("XY_Plane034"), [""])
sketch14.MapMode = "FlatFace"
sketch14.AttachmentOffset = App.Placement(App.Vector(0, 0, 26), App.Rotation())
sketch14.addGeometry([
    Part.LineSegment(App.Vector(-16, 7, 0), App.Vector(-16, -27, 0)),
    Part.LineSegment(App.Vector(-16, -27, 0), App.Vector(45, -27, 0)),
    Part.LineSegment(App.Vector(45, -27, 0), App.Vector(45, 7, 0)),
    Part.LineSegment(App.Vector(45, 7, 0), App.Vector(-16, 7, 0)),
], False)
sketch14.addConstraint([
    Sketcher.Constraint("Coincident", 0, 2, 1, 1),
    Sketcher.Constraint("Coincident", 1, 2, 2, 1),
    Sketcher.Constraint("Coincident", 2, 2, 3, 1),
    Sketcher.Constraint("Coincident", 3, 2, 0, 1),
    Sketcher.Constraint("Vertical", 0),
    Sketcher.Constraint("Horizontal", 1),
    Sketcher.Constraint("Vertical", 2),
    Sketcher.Constraint("Horizontal", 3),
    Sketcher.Constraint("DistanceX", 1, 1, 1, 2, Q("61 mm")),
    Sketcher.Constraint("DistanceY", 0, 2, 0, 1, Q("34 mm")),
    Sketcher.Constraint("DistanceX", 0, 2, -1, 1, Q("16 mm")),
    Sketcher.Constraint("DistanceY", 0, 2, -1, 1, Q("27 mm")),
])
pad14 = body35.newObject("PartDesign::Pad", "Pad013")
pad14.Profile = sketch14
pad14.Length = 13
doc.recompute()

boolean28 = body35.newObject("PartDesign::Boolean", "Boolean027")
boolean28.Type = "Cut"
boolean28.addObjects([body34])
doc.recompute()

boolean29 = body35.newObject("PartDesign::Boolean", "Boolean028")
boolean29.Type = "Cut"
boolean29.addObjects([body33])
doc.recompute()

boolean30 = body35.newObject("PartDesign::Boolean", "Boolean029")
boolean30.Type = "Fuse"
boolean30.addObjects([body30])
body36 = doc.addObject("PartDesign::Body", "Body035")

# Sketch on XY plane
sketch15 = body36.newObject("Sketcher::SketchObject", "Sketch014")
sketch15.AttachmentSupport = (doc.getObject("XY_Plane035"), [""])
sketch15.MapMode = "FlatFace"
sketch15.AttachmentOffset = App.Placement(App.Vector(0, 0, 26), App.Rotation())
sketch15.addGeometry([
    Part.LineSegment(App.Vector(-28, 7, 0), App.Vector(-28, 4, 0)),
    Part.LineSegment(App.Vector(-28, 4, 0), App.Vector(-16, 4, 0)),
    Part.LineSegment(App.Vector(-16, 4, 0), App.Vector(-16, 7, 0)),
    Part.LineSegment(App.Vector(-16, 7, 0), App.Vector(-28, 7, 0)),
], False)
sketch15.addConstraint([
    Sketcher.Constraint("Coincident", 0, 2, 1, 1),
    Sketcher.Constraint("Coincident", 1, 2, 2, 1),
    Sketcher.Constraint("Coincident", 2, 2, 3, 1),
    Sketcher.Constraint("Coincident", 3, 2, 0, 1),
    Sketcher.Constraint("Vertical", 0),
    Sketcher.Constraint("Horizontal", 1),
    Sketcher.Constraint("Vertical", 2),
    Sketcher.Constraint("Horizontal", 3),
    Sketcher.Constraint("DistanceX", 1, 1, 1, 2, Q("12 mm")),
    Sketcher.Constraint("DistanceY", 0, 2, 0, 1, Q("3 mm")),
    Sketcher.Constraint("DistanceX", 0, 2, -1, 1, Q("28 mm")),
    Sketcher.Constraint("DistanceY", -1, 1, 0, 2, Q("4 mm")),
])
pad15 = body36.newObject("PartDesign::Pad", "Pad014")
pad15.Profile = sketch15
pad15.Length = 13
doc.recompute()

boolean31 = body36.newObject("PartDesign::Boolean", "Boolean030")
boolean31.Type = "Fuse"
boolean31.addObjects([body35])
body37 = doc.addObject("PartDesign::Body", "Body036")

# Sketch on XY plane
sketch16 = body37.newObject("Sketcher::SketchObject", "Sketch015")
sketch16.AttachmentSupport = (doc.getObject("XY_Plane036"), [""])
sketch16.MapMode = "FlatFace"
sketch16.AttachmentOffset = App.Placement(App.Vector(0, 0, 26), App.Rotation())
sketch16.addGeometry([
    Part.LineSegment(App.Vector(45, 7, 0), App.Vector(45, 4, 0)),
    Part.LineSegment(App.Vector(45, 4, 0), App.Vector(57, 4, 0)),
    Part.LineSegment(App.Vector(57, 4, 0), App.Vector(57, 7, 0)),
    Part.LineSegment(App.Vector(57, 7, 0), App.Vector(45, 7, 0)),
], False)
sketch16.addConstraint([
    Sketcher.Constraint("Coincident", 0, 2, 1, 1),
    Sketcher.Constraint("Coincident", 1, 2, 2, 1),
    Sketcher.Constraint("Coincident", 2, 2, 3, 1),
    Sketcher.Constraint("Coincident", 3, 2, 0, 1),
    Sketcher.Constraint("Vertical", 0),
    Sketcher.Constraint("Horizontal", 1),
    Sketcher.Constraint("Vertical", 2),
    Sketcher.Constraint("Horizontal", 3),
    Sketcher.Constraint("DistanceX", 1, 1, 1, 2, Q("12 mm")),
    Sketcher.Constraint("DistanceY", 0, 2, 0, 1, Q("3 mm")),
    Sketcher.Constraint("DistanceX", -1, 1, 0, 2, Q("45 mm")),
    Sketcher.Constraint("DistanceY", -1, 1, 0, 2, Q("4 mm")),
])
pad16 = body37.newObject("PartDesign::Pad", "Pad015")
pad16.Profile = sketch16
pad16.Length = 13
doc.recompute()

boolean32 = body37.newObject("PartDesign::Boolean", "Boolean031")
boolean32.Type = "Fuse"
boolean32.addObjects([body36])
doc.recompute()

boolean33 = body37.newObject("PartDesign::Boolean", "Boolean032")
boolean33.Type = "Cut"
boolean33.addObjects([body26])
doc.recompute()

boolean34 = body37.newObject("PartDesign::Boolean", "Boolean033")
boolean34.Type = "Cut"
boolean34.addObjects([body20])
doc.recompute()

boolean35 = body37.newObject("PartDesign::Boolean", "Boolean034")
boolean35.Type = "Cut"
boolean35.addObjects([body14])
doc.recompute()

boolean36 = body37.newObject("PartDesign::Boolean", "Boolean035")
boolean36.Type = "Cut"
boolean36.addObjects([body7])

doc.recompute()
